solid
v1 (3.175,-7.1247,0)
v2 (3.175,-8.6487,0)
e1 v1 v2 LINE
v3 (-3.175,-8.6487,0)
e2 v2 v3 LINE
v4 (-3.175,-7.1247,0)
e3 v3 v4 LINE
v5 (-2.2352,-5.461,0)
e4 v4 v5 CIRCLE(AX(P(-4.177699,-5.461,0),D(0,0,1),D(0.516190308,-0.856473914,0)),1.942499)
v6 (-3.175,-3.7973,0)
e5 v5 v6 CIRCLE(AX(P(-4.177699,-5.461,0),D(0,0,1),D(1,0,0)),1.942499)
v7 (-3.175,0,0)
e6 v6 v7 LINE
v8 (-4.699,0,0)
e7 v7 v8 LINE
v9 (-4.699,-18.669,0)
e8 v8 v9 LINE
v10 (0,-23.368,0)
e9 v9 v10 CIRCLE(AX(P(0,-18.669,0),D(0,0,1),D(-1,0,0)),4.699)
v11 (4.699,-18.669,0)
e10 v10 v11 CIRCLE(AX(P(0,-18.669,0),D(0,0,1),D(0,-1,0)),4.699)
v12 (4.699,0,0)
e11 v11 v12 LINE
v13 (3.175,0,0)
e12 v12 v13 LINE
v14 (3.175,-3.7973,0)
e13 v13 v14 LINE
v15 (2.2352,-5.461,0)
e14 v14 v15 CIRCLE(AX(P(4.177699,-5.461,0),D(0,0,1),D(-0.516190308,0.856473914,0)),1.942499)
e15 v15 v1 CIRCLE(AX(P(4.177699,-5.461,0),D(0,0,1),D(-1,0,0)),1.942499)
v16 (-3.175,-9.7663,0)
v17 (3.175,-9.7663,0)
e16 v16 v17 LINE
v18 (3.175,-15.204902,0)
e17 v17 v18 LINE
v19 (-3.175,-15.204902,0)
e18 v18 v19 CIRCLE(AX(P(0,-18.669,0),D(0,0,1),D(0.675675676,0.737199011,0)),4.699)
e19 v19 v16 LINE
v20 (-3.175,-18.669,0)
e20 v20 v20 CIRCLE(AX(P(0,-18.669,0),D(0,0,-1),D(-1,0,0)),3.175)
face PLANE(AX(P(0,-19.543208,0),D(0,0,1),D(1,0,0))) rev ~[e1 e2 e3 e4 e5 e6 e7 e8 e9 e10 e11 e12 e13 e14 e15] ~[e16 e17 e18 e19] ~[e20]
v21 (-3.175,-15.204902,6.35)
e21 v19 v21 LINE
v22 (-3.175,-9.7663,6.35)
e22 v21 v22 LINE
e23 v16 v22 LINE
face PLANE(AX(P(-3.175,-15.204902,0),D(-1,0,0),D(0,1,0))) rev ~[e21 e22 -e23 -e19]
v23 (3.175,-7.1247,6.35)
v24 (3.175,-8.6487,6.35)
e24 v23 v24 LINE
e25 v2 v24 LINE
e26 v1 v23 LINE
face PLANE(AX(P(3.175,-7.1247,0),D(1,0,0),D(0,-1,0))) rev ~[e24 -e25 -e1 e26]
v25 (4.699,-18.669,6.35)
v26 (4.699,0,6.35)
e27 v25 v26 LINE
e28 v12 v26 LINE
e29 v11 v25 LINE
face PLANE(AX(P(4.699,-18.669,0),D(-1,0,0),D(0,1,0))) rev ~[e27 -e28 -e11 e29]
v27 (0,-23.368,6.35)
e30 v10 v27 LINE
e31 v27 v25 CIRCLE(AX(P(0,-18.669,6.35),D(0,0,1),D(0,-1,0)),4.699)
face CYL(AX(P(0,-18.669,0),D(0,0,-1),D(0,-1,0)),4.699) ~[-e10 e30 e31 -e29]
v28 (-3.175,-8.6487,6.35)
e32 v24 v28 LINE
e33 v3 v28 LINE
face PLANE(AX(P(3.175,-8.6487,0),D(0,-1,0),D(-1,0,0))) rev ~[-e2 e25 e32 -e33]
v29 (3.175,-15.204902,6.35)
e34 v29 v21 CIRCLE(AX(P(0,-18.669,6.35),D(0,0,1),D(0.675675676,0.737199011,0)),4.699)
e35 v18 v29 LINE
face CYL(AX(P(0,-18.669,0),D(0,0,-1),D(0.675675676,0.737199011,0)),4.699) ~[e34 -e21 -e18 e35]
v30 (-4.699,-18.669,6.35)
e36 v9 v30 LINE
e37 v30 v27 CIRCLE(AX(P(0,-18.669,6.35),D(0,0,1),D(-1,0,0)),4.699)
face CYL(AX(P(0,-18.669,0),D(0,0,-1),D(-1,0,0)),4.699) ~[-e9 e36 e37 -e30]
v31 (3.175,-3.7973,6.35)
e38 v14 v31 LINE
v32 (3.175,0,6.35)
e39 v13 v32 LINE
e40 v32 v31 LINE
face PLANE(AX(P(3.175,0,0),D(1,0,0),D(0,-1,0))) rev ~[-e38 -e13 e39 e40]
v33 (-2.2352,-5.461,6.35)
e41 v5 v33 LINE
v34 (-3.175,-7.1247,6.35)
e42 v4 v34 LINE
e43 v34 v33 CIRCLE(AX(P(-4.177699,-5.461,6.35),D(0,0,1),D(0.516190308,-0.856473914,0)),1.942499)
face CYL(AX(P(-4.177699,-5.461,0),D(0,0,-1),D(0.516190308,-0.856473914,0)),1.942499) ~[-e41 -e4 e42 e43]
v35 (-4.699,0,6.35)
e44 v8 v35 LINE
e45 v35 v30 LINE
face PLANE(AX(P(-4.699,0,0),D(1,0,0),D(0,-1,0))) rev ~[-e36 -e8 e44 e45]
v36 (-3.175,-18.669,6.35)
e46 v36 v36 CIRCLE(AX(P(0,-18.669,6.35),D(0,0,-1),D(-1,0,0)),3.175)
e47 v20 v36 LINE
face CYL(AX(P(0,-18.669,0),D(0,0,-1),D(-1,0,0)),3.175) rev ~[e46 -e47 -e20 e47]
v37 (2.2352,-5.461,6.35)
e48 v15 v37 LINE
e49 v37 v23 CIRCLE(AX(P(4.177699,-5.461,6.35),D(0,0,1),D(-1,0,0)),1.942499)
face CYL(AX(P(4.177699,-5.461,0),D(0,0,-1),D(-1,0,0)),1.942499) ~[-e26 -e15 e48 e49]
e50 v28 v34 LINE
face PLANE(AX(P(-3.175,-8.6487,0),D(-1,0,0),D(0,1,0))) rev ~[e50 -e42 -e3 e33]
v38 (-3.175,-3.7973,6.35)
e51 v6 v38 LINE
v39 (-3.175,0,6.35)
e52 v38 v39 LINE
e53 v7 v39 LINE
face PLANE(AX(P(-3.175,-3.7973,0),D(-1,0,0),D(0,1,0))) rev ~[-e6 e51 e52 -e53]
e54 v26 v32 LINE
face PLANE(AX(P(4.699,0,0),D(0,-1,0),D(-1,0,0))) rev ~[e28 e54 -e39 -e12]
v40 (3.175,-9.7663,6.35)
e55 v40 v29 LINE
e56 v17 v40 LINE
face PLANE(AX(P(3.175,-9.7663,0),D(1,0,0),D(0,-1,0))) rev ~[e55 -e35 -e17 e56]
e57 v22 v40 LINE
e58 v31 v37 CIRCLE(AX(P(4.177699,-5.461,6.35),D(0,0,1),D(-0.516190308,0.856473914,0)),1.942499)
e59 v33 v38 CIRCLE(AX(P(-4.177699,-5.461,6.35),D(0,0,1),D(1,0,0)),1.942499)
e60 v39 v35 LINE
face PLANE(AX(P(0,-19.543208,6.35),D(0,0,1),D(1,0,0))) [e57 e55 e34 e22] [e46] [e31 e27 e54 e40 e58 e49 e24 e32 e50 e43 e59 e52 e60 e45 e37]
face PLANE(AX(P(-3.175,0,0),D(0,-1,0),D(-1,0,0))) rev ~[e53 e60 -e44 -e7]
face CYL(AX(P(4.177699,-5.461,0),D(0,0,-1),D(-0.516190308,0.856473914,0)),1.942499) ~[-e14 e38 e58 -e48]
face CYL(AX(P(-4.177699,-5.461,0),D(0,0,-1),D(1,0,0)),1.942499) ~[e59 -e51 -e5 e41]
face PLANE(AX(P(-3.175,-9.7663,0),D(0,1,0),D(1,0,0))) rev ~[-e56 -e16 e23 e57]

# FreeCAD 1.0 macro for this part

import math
import FreeCAD as App
import Part
import Sketcher
from FreeCAD import Vector
Q = App.Units.Quantity

doc = App.newDocument("Part")
body = doc.addObject("PartDesign::Body", "Body")

# Sketch on XY plane
sketch1 = body.newObject("Sketcher::SketchObject", "Sketch")
sketch1.AttachmentSupport = (doc.getObject("XY_Plane"), [""])
sketch1.MapMode = "FlatFace"
sketch1.addGeometry(Part.LineSegment(Vector(3.2, -8.6, 0), Vector(-3.2, -8.6, 0)), False)
sketch1.addGeometry(Part.LineSegment(Vector(-3.2, -8.6, 0), Vector(-3.2, -7.1, 0)), False)
sketch1.addGeometry(Part.ArcOfCircle(Part.Circle(Vector(-4.2, -5.5, 0), Vector(0, 0, 1), 1.9), math.radians(-59), math.radians(0)), False)
sketch1.addGeometry(Part.ArcOfCircle(Part.Circle(Vector(-4.2, -5.5, 0), Vector(0, 0, 1), 1.9), math.radians(0), math.radians(59)), False)
sketch1.addGeometry(Part.LineSegment(Vector(-3.2, -3.8, 0), Vector(-3.2, 0, 0)), False)
sketch1.addGeometry(Part.LineSegment(Vector(-3.2, 0, 0), Vector(-4.7, 0, 0)), False)
sketch1.addGeometry(Part.LineSegment(Vector(-4.7, 0, 0), Vector(-4.7, -18.7, 0)), False)
sketch1.addGeometry(Part.ArcOfCircle(Part.Circle(Vector(0, -18.7, 0), Vector(0, 0, 1), 4.7), math.radians(180), math.radians(270)), False)
sketch1.addGeometry(Part.ArcOfCircle(Part.Circle(Vector(0, -18.7, 0), Vector(0, 0, 1), 4.7), math.radians(-90), math.radians(0)), False)
sketch1.addGeometry(Part.LineSegment(Vector(4.7, -18.7, 0), Vector(4.7, 0, 0)), False)
sketch1.addGeometry(Part.LineSegment(Vector(4.7, 0, 0), Vector(3.2, 0, 0)), False)
sketch1.addGeometry(Part.LineSegment(Vector(3.2, 0, 0), Vector(3.2, -3.8, 0)), False)
sketch1.addGeometry(Part.ArcOfCircle(Part.Circle(Vector(4.2, -5.5, 0), Vector(0, 0, 1), 1.9), math.radians(121), math.radians(180)), False)
sketch1.addGeometry(Part.ArcOfCircle(Part.Circle(Vector(4.2, -5.5, 0), Vector(0, 0, 1), 1.9), math.radians(180), math.radians(239)), False)
sketch1.addGeometry(Part.LineSegment(Vector(3.2, -7.1, 0), Vector(3.2, -8.6, 0)), False)
sketch1.addGeometry(Part.Circle(Vector(0, -18.7, 0), Vector(0, 0, 1), 3.2), False)
sketch1.addGeometry(Part.LineSegment(Vector(-3.2, -15.2, 0), Vector(-3.2, -9.8, 0)), False)
sketch1.addGeometry(Part.LineSegment(Vector(-3.2, -9.8, 0), Vector(3.2, -9.8, 0)), False)
sketch1.addGeometry(Part.LineSegment(Vector(3.2, -9.8, 0), Vector(3.2, -15.2, 0)), False)
sketch1.addGeometry(Part.ArcOfCircle(Part.Circle(Vector(0, -18.7, 0), Vector(0, 0, 1), 4.7), math.radians(47), math.radians(133)), False)
sketch1.addConstraint(Sketcher.Constraint("Coincident", 0, 2, 1, 1))
sketch1.addConstraint(Sketcher.Constraint("Coincident", 1, 2, 2, 1))
sketch1.addConstraint(Sketcher.Constraint("Tangent", 2, 2, 3, 1))
sketch1.addConstraint(Sketcher.Constraint("Coincident", 3, 2, 4, 1))
sketch1.addConstraint(Sketcher.Constraint("Coincident", 4, 2, 5, 1))
sketch1.addConstraint(Sketcher.Constraint("Coincident", 5, 2, 6, 1))
sketch1.addConstraint(Sketcher.Constraint("Tangent", 6, 2, 7, 1))
sketch1.addConstraint(Sketcher.Constraint("Tangent", 7, 2, 8, 1))
sketch1.addConstraint(Sketcher.Constraint("Tangent", 8, 2, 9, 1))
sketch1.addConstraint(Sketcher.Constraint("Coincident", 9, 2, 10, 1))
sketch1.addConstraint(Sketcher.Constraint("Coincident", 10, 2, 11, 1))
sketch1.addConstraint(Sketcher.Constraint("Coincident", 11, 2, 12, 1))
sketch1.addConstraint(Sketcher.Constraint("Tangent", 12, 2, 13, 1))
sketch1.addConstraint(Sketcher.Constraint("Coincident", 13, 2, 14, 1))
sketch1.addConstraint(Sketcher.Constraint("Coincident", 14, 2, 0, 1))
sketch1.addConstraint(Sketcher.Constraint("Coincident", 16, 2, 17, 1))
sketch1.addConstraint(Sketcher.Constraint("Coincident", 17, 2, 18, 1))
sketch1.addConstraint(Sketcher.Constraint("Coincident", 18, 2, 19, 1))
sketch1.addConstraint(Sketcher.Constraint("Coincident", 19, 2, 16, 1))
sketch1.addConstraint(Sketcher.Constraint("Horizontal", 0))
sketch1.addConstraint(Sketcher.Constraint("Vertical", 1))
sketch1.addConstraint(Sketcher.Constraint("Vertical", 4))
sketch1.addConstraint(Sketcher.Constraint("Horizontal", 5))
sketch1.addConstraint(Sketcher.Constraint("Vertical", 6))
sketch1.addConstraint(Sketcher.Constraint("Vertical", 9))
sketch1.addConstraint(Sketcher.Constraint("Horizontal", 10))
sketch1.addConstraint(Sketcher.Constraint("Vertical", 11))
sketch1.addConstraint(Sketcher.Constraint("Vertical", 14))
sketch1.addConstraint(Sketcher.Constraint("Vertical", 16))
sketch1.addConstraint(Sketcher.Constraint("Horizontal", 17))
sketch1.addConstraint(Sketcher.Constraint("Vertical", 18))
sketch1.addConstraint(Sketcher.Constraint("Coincident", 15, 3, 7, 3))
sketch1.addConstraint(Sketcher.Constraint("Coincident", 19, 3, 7, 3))
sketch1.addConstraint(Sketcher.Constraint("Equal", 2, 3))
sketch1.addConstraint(Sketcher.Constraint("Equal", 7, 8))
sketch1.addConstraint(Sketcher.Constraint("Equal", 3, 12))
sketch1.addConstraint(Sketcher.Constraint("Equal", 12, 13))
sketch1.addConstraint(Sketcher.Constraint("Equal", 8, 19))
sketch1.addConstraint(Sketcher.Constraint("Symmetric", 5, 2, 9, 2, -1, 1))
sketch1.addConstraint(Sketcher.Constraint("Symmetric", 2, 3, 12, 3, -2))
sketch1.addConstraint(Sketcher.Constraint("Symmetric", 4, 2, 10, 2, -2))
sketch1.addConstraint(Sketcher.Constraint("PointOnObject", 7, 2, -2))
sketch1.addConstraint(Sketcher.Constraint("Horizontal", 13, 3, 2, 2))
sketch1.addConstraint(Sketcher.Constraint("Horizontal", 2, 2, 12, 2))
sketch1.addConstraint(Sketcher.Constraint("Horizontal", 1, 2, 13, 2))
sketch1.addConstraint(Sketcher.Constraint("Horizontal", 18, 2, 19, 2))
sketch1.addConstraint(Sketcher.Constraint("Vertical", 1, 2, 3, 2))
sketch1.addConstraint(Sketcher.Constraint("Vertical", 4, 2, 16, 2))
sketch1.addConstraint(Sketcher.Constraint("Equal", 10, 1))
sketch1.addConstraint(Sketcher.Constraint("Diameter", 15, Q("0.25 in")))
sketch1.addConstraint(Sketcher.Constraint("Radius", 7, Q("0.185 in")))
sketch1.addConstraint(Sketcher.Constraint("DistanceX", 0, 2, 0, 1, Q("0.25 in")))
sketch1.addConstraint(Sketcher.Constraint("DistanceY", 6, 2, 6, 1, Q("0.735 in")))
sketch1.addConstraint(Sketcher.Constraint("Radius", 2, 1.942499))
sketch1.addConstraint(Sketcher.Constraint("DistanceY", 7, 3, 2, 3, Q("0.52 in")))
sketch1.addConstraint(Sketcher.Constraint("DistanceY", 4, 1, 4, 2, Q("0.1495 in")))
sketch1.addConstraint(Sketcher.Constraint("DistanceY", 16, 2, 0, 2, Q("0.044 in")))
pad1 = body.newObject("PartDesign::Pad", "Pad")
pad1.Profile = sketch1
pad1.Length = Q("0.25 in")

doc.recompute()
